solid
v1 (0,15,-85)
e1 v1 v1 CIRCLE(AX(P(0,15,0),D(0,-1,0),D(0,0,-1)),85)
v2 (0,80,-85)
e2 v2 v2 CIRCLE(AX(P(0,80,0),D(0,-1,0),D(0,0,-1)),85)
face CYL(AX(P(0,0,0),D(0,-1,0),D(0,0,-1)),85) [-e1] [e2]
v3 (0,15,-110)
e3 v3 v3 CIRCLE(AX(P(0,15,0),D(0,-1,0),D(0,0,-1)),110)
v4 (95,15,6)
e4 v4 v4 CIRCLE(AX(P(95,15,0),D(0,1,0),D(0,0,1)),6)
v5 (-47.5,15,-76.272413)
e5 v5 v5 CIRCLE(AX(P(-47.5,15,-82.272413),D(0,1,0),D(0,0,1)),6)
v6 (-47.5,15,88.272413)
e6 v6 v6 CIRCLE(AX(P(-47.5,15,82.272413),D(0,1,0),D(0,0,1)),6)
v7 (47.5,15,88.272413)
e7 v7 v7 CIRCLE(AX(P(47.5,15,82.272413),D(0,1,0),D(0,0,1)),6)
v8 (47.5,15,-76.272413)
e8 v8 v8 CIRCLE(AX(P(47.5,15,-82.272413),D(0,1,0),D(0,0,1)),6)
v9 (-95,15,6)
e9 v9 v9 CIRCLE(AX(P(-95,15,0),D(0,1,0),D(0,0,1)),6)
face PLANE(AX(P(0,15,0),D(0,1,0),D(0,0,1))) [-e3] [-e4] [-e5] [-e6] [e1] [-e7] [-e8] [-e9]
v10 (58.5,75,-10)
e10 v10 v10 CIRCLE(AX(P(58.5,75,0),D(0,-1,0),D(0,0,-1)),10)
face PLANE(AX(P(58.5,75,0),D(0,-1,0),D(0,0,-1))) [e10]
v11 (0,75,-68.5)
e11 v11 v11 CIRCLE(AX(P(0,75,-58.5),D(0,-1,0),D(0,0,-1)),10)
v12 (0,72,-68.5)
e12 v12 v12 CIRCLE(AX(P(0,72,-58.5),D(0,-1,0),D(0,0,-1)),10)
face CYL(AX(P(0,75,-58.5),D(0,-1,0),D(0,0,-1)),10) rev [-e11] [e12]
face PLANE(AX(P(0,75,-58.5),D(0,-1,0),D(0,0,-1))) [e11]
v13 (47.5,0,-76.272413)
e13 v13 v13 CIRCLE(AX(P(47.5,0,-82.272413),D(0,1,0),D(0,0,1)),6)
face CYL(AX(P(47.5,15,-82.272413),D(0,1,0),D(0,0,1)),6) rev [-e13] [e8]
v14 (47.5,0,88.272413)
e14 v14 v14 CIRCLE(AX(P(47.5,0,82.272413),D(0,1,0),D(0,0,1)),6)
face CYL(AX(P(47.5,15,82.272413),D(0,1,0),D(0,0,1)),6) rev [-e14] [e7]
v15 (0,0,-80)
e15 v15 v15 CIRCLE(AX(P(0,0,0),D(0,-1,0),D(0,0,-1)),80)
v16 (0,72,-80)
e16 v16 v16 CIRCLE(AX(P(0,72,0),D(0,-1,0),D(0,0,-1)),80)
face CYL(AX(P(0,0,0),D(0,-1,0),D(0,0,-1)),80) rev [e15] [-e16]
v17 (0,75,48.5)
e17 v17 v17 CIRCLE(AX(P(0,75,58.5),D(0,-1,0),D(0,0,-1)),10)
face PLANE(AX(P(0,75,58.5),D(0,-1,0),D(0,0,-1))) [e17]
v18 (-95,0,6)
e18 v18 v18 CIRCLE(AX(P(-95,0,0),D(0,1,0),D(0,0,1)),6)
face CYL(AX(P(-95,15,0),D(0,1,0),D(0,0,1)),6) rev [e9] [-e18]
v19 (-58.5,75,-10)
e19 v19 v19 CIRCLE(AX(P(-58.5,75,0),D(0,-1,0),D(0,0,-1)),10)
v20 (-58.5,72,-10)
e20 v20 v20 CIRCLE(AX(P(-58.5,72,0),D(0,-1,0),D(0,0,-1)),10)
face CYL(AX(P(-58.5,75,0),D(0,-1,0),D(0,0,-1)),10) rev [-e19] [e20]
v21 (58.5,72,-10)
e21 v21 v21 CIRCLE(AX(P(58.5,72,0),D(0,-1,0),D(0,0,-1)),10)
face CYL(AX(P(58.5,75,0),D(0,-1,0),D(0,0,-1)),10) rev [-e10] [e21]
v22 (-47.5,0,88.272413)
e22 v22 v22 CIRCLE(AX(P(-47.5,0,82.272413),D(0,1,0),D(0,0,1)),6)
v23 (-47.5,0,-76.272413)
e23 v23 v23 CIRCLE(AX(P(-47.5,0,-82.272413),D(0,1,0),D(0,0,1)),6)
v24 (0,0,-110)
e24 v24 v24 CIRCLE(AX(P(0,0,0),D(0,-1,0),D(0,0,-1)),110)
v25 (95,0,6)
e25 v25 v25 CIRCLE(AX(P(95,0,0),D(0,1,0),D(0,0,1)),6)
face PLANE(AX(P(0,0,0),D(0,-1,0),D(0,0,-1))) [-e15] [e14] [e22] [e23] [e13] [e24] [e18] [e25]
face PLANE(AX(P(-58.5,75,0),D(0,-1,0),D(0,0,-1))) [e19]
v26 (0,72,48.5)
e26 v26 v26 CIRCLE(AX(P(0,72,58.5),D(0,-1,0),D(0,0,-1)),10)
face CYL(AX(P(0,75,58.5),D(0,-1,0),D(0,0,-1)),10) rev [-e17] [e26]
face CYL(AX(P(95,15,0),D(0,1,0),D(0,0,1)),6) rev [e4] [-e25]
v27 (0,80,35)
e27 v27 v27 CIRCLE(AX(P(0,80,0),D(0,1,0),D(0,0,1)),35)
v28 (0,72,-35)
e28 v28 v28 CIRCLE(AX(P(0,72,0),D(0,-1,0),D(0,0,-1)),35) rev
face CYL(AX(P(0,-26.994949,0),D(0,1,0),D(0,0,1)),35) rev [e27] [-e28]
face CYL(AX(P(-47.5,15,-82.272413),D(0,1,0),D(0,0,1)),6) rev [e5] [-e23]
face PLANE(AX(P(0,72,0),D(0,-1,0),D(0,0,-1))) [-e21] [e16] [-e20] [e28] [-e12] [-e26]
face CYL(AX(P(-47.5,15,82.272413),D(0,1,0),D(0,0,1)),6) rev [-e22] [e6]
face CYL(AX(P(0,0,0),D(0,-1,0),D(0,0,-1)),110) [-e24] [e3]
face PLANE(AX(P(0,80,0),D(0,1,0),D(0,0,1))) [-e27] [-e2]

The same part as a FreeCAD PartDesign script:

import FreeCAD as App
import Part
import Sketcher
from FreeCAD import Vector
Q = App.Units.Quantity

doc = App.newDocument("Part")
params = doc.addObject("Spreadsheet::Sheet", "Params")
for row, (alias, value) in enumerate([
    ("sketch1_width", "80 mm"),
    ("sketch1_width2", "85 mm"),
    ("sketch1_width3", "25 mm"),
    ("sketch1_height", "8 mm"),
    ("sketch1_height2", "65 mm"),
    ("revolution_angle", "360 deg"),
    ("sketch2_diameter", "70 mm"),
    ("pocket1_length", "8 mm"),
    ("sketch3_diameter", "12 mm"),
    ("hole_diameter", "12 mm"),
    ("sketch4_diameter", "20 mm"),
    ("pocket2_length", "3 mm"),
], start=1):
    params.set(f"A{row}", alias)
    params.set(f"B{row}", "=" + value)
    params.setAlias(f"B{row}", alias)

body = doc.addObject("PartDesign::Body", "Body")

sketch1 = body.newObject("Sketcher::SketchObject", "Sketch")
sketch1.AttachmentSupport = (doc.getObject("XY_Plane"), [""])
sketch1.MapMode = "FlatFace"
sketch1.addGeometry([
    Part.LineSegment(Vector(-80, 72, 0), Vector(0, 72, 0)),
    Part.LineSegment(Vector(0, 72, 0), Vector(0, 80, 0)),
    Part.LineSegment(Vector(0, 80, 0), Vector(-85, 80, 0)),
    Part.LineSegment(Vector(-85, 80, 0), Vector(-85, 15, 0)),
    Part.LineSegment(Vector(-85, 15, 0), Vector(-110, 15, 0)),
    Part.LineSegment(Vector(-110, 15, 0), Vector(-110, 0, 0)),
    Part.LineSegment(Vector(-110, 0, 0), Vector(-80, 0, 0)),
    Part.LineSegment(Vector(-80, 0, 0), Vector(-80, 72, 0)),
], False)
sketch1.addConstraint([
    Sketcher.Constraint("Coincident", 0, 2, 1, 1),
    Sketcher.Constraint("Coincident", 1, 2, 2, 1),
    Sketcher.Constraint("Coincident", 2, 2, 3, 1),
    Sketcher.Constraint("Coincident", 3, 2, 4, 1),
    Sketcher.Constraint("Coincident", 4, 2, 5, 1),
    Sketcher.Constraint("Coincident", 5, 2, 6, 1),
    Sketcher.Constraint("Coincident", 6, 2, 7, 1),
    Sketcher.Constraint("Coincident", 7, 2, 0, 1),
    Sketcher.Constraint("Horizontal", 0),
    Sketcher.Constraint("Vertical", 1),
    Sketcher.Constraint("Horizontal", 2),
    Sketcher.Constraint("Vertical", 3),
    Sketcher.Constraint("Horizontal", 4),
    Sketcher.Constraint("Vertical", 5),
    Sketcher.Constraint("Horizontal", 6),
    Sketcher.Constraint("Vertical", 7),
    Sketcher.Constraint("PointOnObject", 0, 2, -2),
    Sketcher.Constraint("PointOnObject", 5, 2, -1),
    Sketcher.Constraint("DistanceX", 0, 1, 0, 2, Q("80 mm")),
    Sketcher.Constraint("DistanceX", 2, 2, 2, 1, Q("85 mm")),
    Sketcher.Constraint("DistanceX", 4, 2, 4, 1, Q("25 mm")),
    Sketcher.Constraint("DistanceY", 1, 1, 1, 2, Q("8 mm")),
    Sketcher.Constraint("DistanceY", 3, 2, 3, 1, Q("65 mm")),
    Sketcher.Constraint("DistanceY", 5, 2, 5, 1, Q("15 mm")),
])
sketch1.setExpression("Constraints[18]", "Params.sketch1_width")
sketch1.setExpression("Constraints[19]", "Params.sketch1_width2")
sketch1.setExpression("Constraints[20]", "Params.sketch1_width3")
sketch1.setExpression("Constraints[21]", "Params.sketch1_height")
sketch1.setExpression("Constraints[22]", "Params.sketch1_height2")
revolution = body.newObject("PartDesign::Revolution", "Revolution")
revolution.Profile = sketch1
revolution.ReferenceAxis = (sketch1, ["V_Axis"])
revolution.setExpression("Angle", "Params.revolution_angle")

sketch2 = body.newObject("Sketcher::SketchObject", "Sketch001")
sketch2.AttachmentSupport = (doc.getObject("XZ_Plane"), [""])
sketch2.MapMode = "FlatFace"
sketch2.AttachmentOffset = App.Placement(Vector(0, 0, -80), App.Rotation())
sketch2.addGeometry(Part.Circle(Vector(0, 0, 0), Vector(0, 0, 1), 35), False)
sketch2.addConstraint([
    Sketcher.Constraint("Coincident", 0, 3, -1, 1),
    Sketcher.Constraint("Diameter", 0, Q("70 mm")),
])
sketch2.setExpression("Constraints[1]", "Params.sketch2_diameter")
pocket1 = body.newObject("PartDesign::Pocket", "Pocket")
pocket1.Profile = sketch2
pocket1.setExpression("Length", "Params.pocket1_length")
pocket1.Reversed = True

sketch3 = body.newObject("Sketcher::SketchObject", "Sketch002")
sketch3.AttachmentSupport = (doc.getObject("XZ_Plane"), [""])
sketch3.MapMode = "FlatFace"
sketch3.AttachmentOffset = App.Placement(Vector(0, 0, -15), App.Rotation())
sketch3.addGeometry([
    Part.Circle(Vector(-48, 82, 0), Vector(0, 0, 1), 6),
    Part.Circle(Vector(-95, 0, 0), Vector(0, 0, 1), 6),
    Part.Circle(Vector(-48, -82, 0), Vector(0, 0, 1), 6),
    Part.Circle(Vector(48, -82, 0), Vector(0, 0, 1), 6),
    Part.Circle(Vector(95, 0, 0), Vector(0, 0, 1), 6),
    Part.Circle(Vector(48, 82, 0), Vector(0, 0, 1), 6),
], False)
sketch3.addConstraint([
    Sketcher.Constraint("Equal", 0, 1),
    Sketcher.Constraint("Equal", 1, 2),
    Sketcher.Constraint("Equal", 2, 3),
    Sketcher.Constraint("Equal", 3, 4),
    Sketcher.Constraint("Equal", 4, 5),
    Sketcher.Constraint("Symmetric", 0, 3, 3, 3, -1, 1),
    Sketcher.Constraint("Symmetric", 1, 3, 4, 3, -1, 1),
    Sketcher.Constraint("Symmetric", 2, 3, 5, 3, -1, 1),
    Sketcher.Constraint("Symmetric", 2, 3, 3, 3, -2),
    Sketcher.Constraint("PointOnObject", 1, 3, -1),
    Sketcher.Constraint("Diameter", 0, Q("12 mm")),
    Sketcher.Constraint("DistanceX", 1, 3, -1, 1, Q("95 mm")),
    Sketcher.Constraint("DistanceX", 2, 3, 3, 3, Q("95 mm")),
    Sketcher.Constraint("DistanceY", -1, 1, 0, 3, Q("82.272413 mm")),
])
sketch3.setExpression("Constraints[10]", "Params.sketch3_diameter")
doc.recompute()
hole = body.newObject("PartDesign::Hole", "Hole")
hole.Profile = sketch3
hole.ThreadType = "None"
hole.setExpression("Diameter", "Params.hole_diameter")
hole.DepthType = "ThroughAll"
hole.Reversed = True

sketch4 = body.newObject("Sketcher::SketchObject", "Sketch003")
sketch4.AttachmentSupport = (doc.getObject("XZ_Plane"), [""])
sketch4.MapMode = "FlatFace"
sketch4.AttachmentOffset = App.Placement(Vector(0, 0, -72), App.Rotation())
sketch4.addGeometry([
    Part.Circle(Vector(0, 58, 0), Vector(0, 0, 1), 10),
    Part.Circle(Vector(58, 0, 0), Vector(0, 0, 1), 10),
    Part.Circle(Vector(0, -58, 0), Vector(0, 0, 1), 10),
    Part.Circle(Vector(-58, 0, 0), Vector(0, 0, 1), 10),
], False)
sketch4.addConstraint([
    Sketcher.Constraint("Equal", 0, 1),
    Sketcher.Constraint("Equal", 1, 2),
    Sketcher.Constraint("Equal", 2, 3),
    Sketcher.Constraint("Symmetric", 0, 3, 2, 3, -1, 1),
    Sketcher.Constraint("Symmetric", 1, 3, 3, 3, -1, 1),
    Sketcher.Constraint("PointOnObject", 0, 3, -2),
    Sketcher.Constraint("PointOnObject", 1, 3, -1),
    Sketcher.Constraint("Diameter", 0, Q("20 mm")),
    Sketcher.Constraint("DistanceY", 2, 3, 0, 3, Q("117 mm")),
    Sketcher.Constraint("DistanceX", 3, 3, 1, 3, Q("117 mm")),
])
sketch4.setExpression("Constraints[7]", "Params.sketch4_diameter")
pocket2 = body.newObject("PartDesign::Pocket", "Pocket001")
pocket2.Profile = sketch4
pocket2.setExpression("Length", "Params.pocket2_length")

doc.recompute()
